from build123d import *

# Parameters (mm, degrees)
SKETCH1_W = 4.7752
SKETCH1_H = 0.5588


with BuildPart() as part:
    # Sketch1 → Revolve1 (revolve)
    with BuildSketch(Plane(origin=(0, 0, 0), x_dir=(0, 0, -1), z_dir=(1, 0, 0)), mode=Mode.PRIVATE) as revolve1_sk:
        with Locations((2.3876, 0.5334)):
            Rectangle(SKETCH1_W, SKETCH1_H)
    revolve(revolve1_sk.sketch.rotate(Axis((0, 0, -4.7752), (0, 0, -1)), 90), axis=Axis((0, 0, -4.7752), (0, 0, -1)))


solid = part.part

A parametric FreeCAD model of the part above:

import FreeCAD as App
import Part
import Sketcher

V = App.Vector
Q = App.Units.Quantity

doc = App.newDocument("Part")
params = doc.addObject("Spreadsheet::Sheet", "Params")
for row, (alias, value) in enumerate([
    ("sketch1_width", "0.022 in"),
    ("sketch1_height", "0.188 in"),
    ("revolution_angle", "360 deg"),
], start=1):
    params.set(f"A{row}", alias)
    params.set(f"B{row}", "=" + value)
    params.setAlias(f"B{row}", alias)

body = doc.addObject("PartDesign::Body", "Body")

# Sketch on YZ plane
sketch1 = doc.addObject("Sketcher::SketchObject", "Sketch")
body.addObject(sketch1)
sketch1.AttachmentSupport = (doc.YZ_Plane, [""])
sketch1.MapMode = "FlatFace"
sketch1.addGeometry([
    Part.LineSegment(V(0.8, 0, 0), V(0.3, 0, 0)),
    Part.LineSegment(V(0.3, 0, 0), V(0.3, -4.8, 0)),
    Part.LineSegment(V(0.3, -4.8, 0), V(0.8, -4.8, 0)),
    Part.LineSegment(V(0.8, -4.8, 0), V(0.8, 0, 0)),
], False)
sketch1.addConstraint([
    Sketcher.Constraint("Coincident", 0, 2, 1, 1),
    Sketcher.Constraint("Coincident", 1, 2, 2, 1),
    Sketcher.Constraint("Coincident", 2, 2, 3, 1),
    Sketcher.Constraint("Coincident", 3, 2, 0, 1),
    Sketcher.Constraint("Horizontal", 0),
    Sketcher.Constraint("Vertical", 1),
    Sketcher.Constraint("Horizontal", 2),
    Sketcher.Constraint("Vertical", 3),
    Sketcher.Constraint("PointOnObject", 0, 2, -1),
    Sketcher.Constraint("DistanceX", 0, 2, 0, 1, Q("0.022 in")),
    Sketcher.Constraint("DistanceY", 1, 2, 1, 1, Q("0.188 in")),
    Sketcher.Constraint("DistanceX", -1, 1, 0, 2, Q("0.01 in")),
])
sketch1.setExpression("Constraints[9]", "Params.sketch1_width")
sketch1.setExpression("Constraints[10]", "Params.sketch1_height")
revolution = doc.addObject("PartDesign::Revolution", "Revolution")
body.addObject(revolution)
revolution.Profile = sketch1
revolution.ReferenceAxis = (sketch1, ["V_Axis"])
revolution.setExpression("Angle", "Params.revolution_angle")

doc.recompute()
